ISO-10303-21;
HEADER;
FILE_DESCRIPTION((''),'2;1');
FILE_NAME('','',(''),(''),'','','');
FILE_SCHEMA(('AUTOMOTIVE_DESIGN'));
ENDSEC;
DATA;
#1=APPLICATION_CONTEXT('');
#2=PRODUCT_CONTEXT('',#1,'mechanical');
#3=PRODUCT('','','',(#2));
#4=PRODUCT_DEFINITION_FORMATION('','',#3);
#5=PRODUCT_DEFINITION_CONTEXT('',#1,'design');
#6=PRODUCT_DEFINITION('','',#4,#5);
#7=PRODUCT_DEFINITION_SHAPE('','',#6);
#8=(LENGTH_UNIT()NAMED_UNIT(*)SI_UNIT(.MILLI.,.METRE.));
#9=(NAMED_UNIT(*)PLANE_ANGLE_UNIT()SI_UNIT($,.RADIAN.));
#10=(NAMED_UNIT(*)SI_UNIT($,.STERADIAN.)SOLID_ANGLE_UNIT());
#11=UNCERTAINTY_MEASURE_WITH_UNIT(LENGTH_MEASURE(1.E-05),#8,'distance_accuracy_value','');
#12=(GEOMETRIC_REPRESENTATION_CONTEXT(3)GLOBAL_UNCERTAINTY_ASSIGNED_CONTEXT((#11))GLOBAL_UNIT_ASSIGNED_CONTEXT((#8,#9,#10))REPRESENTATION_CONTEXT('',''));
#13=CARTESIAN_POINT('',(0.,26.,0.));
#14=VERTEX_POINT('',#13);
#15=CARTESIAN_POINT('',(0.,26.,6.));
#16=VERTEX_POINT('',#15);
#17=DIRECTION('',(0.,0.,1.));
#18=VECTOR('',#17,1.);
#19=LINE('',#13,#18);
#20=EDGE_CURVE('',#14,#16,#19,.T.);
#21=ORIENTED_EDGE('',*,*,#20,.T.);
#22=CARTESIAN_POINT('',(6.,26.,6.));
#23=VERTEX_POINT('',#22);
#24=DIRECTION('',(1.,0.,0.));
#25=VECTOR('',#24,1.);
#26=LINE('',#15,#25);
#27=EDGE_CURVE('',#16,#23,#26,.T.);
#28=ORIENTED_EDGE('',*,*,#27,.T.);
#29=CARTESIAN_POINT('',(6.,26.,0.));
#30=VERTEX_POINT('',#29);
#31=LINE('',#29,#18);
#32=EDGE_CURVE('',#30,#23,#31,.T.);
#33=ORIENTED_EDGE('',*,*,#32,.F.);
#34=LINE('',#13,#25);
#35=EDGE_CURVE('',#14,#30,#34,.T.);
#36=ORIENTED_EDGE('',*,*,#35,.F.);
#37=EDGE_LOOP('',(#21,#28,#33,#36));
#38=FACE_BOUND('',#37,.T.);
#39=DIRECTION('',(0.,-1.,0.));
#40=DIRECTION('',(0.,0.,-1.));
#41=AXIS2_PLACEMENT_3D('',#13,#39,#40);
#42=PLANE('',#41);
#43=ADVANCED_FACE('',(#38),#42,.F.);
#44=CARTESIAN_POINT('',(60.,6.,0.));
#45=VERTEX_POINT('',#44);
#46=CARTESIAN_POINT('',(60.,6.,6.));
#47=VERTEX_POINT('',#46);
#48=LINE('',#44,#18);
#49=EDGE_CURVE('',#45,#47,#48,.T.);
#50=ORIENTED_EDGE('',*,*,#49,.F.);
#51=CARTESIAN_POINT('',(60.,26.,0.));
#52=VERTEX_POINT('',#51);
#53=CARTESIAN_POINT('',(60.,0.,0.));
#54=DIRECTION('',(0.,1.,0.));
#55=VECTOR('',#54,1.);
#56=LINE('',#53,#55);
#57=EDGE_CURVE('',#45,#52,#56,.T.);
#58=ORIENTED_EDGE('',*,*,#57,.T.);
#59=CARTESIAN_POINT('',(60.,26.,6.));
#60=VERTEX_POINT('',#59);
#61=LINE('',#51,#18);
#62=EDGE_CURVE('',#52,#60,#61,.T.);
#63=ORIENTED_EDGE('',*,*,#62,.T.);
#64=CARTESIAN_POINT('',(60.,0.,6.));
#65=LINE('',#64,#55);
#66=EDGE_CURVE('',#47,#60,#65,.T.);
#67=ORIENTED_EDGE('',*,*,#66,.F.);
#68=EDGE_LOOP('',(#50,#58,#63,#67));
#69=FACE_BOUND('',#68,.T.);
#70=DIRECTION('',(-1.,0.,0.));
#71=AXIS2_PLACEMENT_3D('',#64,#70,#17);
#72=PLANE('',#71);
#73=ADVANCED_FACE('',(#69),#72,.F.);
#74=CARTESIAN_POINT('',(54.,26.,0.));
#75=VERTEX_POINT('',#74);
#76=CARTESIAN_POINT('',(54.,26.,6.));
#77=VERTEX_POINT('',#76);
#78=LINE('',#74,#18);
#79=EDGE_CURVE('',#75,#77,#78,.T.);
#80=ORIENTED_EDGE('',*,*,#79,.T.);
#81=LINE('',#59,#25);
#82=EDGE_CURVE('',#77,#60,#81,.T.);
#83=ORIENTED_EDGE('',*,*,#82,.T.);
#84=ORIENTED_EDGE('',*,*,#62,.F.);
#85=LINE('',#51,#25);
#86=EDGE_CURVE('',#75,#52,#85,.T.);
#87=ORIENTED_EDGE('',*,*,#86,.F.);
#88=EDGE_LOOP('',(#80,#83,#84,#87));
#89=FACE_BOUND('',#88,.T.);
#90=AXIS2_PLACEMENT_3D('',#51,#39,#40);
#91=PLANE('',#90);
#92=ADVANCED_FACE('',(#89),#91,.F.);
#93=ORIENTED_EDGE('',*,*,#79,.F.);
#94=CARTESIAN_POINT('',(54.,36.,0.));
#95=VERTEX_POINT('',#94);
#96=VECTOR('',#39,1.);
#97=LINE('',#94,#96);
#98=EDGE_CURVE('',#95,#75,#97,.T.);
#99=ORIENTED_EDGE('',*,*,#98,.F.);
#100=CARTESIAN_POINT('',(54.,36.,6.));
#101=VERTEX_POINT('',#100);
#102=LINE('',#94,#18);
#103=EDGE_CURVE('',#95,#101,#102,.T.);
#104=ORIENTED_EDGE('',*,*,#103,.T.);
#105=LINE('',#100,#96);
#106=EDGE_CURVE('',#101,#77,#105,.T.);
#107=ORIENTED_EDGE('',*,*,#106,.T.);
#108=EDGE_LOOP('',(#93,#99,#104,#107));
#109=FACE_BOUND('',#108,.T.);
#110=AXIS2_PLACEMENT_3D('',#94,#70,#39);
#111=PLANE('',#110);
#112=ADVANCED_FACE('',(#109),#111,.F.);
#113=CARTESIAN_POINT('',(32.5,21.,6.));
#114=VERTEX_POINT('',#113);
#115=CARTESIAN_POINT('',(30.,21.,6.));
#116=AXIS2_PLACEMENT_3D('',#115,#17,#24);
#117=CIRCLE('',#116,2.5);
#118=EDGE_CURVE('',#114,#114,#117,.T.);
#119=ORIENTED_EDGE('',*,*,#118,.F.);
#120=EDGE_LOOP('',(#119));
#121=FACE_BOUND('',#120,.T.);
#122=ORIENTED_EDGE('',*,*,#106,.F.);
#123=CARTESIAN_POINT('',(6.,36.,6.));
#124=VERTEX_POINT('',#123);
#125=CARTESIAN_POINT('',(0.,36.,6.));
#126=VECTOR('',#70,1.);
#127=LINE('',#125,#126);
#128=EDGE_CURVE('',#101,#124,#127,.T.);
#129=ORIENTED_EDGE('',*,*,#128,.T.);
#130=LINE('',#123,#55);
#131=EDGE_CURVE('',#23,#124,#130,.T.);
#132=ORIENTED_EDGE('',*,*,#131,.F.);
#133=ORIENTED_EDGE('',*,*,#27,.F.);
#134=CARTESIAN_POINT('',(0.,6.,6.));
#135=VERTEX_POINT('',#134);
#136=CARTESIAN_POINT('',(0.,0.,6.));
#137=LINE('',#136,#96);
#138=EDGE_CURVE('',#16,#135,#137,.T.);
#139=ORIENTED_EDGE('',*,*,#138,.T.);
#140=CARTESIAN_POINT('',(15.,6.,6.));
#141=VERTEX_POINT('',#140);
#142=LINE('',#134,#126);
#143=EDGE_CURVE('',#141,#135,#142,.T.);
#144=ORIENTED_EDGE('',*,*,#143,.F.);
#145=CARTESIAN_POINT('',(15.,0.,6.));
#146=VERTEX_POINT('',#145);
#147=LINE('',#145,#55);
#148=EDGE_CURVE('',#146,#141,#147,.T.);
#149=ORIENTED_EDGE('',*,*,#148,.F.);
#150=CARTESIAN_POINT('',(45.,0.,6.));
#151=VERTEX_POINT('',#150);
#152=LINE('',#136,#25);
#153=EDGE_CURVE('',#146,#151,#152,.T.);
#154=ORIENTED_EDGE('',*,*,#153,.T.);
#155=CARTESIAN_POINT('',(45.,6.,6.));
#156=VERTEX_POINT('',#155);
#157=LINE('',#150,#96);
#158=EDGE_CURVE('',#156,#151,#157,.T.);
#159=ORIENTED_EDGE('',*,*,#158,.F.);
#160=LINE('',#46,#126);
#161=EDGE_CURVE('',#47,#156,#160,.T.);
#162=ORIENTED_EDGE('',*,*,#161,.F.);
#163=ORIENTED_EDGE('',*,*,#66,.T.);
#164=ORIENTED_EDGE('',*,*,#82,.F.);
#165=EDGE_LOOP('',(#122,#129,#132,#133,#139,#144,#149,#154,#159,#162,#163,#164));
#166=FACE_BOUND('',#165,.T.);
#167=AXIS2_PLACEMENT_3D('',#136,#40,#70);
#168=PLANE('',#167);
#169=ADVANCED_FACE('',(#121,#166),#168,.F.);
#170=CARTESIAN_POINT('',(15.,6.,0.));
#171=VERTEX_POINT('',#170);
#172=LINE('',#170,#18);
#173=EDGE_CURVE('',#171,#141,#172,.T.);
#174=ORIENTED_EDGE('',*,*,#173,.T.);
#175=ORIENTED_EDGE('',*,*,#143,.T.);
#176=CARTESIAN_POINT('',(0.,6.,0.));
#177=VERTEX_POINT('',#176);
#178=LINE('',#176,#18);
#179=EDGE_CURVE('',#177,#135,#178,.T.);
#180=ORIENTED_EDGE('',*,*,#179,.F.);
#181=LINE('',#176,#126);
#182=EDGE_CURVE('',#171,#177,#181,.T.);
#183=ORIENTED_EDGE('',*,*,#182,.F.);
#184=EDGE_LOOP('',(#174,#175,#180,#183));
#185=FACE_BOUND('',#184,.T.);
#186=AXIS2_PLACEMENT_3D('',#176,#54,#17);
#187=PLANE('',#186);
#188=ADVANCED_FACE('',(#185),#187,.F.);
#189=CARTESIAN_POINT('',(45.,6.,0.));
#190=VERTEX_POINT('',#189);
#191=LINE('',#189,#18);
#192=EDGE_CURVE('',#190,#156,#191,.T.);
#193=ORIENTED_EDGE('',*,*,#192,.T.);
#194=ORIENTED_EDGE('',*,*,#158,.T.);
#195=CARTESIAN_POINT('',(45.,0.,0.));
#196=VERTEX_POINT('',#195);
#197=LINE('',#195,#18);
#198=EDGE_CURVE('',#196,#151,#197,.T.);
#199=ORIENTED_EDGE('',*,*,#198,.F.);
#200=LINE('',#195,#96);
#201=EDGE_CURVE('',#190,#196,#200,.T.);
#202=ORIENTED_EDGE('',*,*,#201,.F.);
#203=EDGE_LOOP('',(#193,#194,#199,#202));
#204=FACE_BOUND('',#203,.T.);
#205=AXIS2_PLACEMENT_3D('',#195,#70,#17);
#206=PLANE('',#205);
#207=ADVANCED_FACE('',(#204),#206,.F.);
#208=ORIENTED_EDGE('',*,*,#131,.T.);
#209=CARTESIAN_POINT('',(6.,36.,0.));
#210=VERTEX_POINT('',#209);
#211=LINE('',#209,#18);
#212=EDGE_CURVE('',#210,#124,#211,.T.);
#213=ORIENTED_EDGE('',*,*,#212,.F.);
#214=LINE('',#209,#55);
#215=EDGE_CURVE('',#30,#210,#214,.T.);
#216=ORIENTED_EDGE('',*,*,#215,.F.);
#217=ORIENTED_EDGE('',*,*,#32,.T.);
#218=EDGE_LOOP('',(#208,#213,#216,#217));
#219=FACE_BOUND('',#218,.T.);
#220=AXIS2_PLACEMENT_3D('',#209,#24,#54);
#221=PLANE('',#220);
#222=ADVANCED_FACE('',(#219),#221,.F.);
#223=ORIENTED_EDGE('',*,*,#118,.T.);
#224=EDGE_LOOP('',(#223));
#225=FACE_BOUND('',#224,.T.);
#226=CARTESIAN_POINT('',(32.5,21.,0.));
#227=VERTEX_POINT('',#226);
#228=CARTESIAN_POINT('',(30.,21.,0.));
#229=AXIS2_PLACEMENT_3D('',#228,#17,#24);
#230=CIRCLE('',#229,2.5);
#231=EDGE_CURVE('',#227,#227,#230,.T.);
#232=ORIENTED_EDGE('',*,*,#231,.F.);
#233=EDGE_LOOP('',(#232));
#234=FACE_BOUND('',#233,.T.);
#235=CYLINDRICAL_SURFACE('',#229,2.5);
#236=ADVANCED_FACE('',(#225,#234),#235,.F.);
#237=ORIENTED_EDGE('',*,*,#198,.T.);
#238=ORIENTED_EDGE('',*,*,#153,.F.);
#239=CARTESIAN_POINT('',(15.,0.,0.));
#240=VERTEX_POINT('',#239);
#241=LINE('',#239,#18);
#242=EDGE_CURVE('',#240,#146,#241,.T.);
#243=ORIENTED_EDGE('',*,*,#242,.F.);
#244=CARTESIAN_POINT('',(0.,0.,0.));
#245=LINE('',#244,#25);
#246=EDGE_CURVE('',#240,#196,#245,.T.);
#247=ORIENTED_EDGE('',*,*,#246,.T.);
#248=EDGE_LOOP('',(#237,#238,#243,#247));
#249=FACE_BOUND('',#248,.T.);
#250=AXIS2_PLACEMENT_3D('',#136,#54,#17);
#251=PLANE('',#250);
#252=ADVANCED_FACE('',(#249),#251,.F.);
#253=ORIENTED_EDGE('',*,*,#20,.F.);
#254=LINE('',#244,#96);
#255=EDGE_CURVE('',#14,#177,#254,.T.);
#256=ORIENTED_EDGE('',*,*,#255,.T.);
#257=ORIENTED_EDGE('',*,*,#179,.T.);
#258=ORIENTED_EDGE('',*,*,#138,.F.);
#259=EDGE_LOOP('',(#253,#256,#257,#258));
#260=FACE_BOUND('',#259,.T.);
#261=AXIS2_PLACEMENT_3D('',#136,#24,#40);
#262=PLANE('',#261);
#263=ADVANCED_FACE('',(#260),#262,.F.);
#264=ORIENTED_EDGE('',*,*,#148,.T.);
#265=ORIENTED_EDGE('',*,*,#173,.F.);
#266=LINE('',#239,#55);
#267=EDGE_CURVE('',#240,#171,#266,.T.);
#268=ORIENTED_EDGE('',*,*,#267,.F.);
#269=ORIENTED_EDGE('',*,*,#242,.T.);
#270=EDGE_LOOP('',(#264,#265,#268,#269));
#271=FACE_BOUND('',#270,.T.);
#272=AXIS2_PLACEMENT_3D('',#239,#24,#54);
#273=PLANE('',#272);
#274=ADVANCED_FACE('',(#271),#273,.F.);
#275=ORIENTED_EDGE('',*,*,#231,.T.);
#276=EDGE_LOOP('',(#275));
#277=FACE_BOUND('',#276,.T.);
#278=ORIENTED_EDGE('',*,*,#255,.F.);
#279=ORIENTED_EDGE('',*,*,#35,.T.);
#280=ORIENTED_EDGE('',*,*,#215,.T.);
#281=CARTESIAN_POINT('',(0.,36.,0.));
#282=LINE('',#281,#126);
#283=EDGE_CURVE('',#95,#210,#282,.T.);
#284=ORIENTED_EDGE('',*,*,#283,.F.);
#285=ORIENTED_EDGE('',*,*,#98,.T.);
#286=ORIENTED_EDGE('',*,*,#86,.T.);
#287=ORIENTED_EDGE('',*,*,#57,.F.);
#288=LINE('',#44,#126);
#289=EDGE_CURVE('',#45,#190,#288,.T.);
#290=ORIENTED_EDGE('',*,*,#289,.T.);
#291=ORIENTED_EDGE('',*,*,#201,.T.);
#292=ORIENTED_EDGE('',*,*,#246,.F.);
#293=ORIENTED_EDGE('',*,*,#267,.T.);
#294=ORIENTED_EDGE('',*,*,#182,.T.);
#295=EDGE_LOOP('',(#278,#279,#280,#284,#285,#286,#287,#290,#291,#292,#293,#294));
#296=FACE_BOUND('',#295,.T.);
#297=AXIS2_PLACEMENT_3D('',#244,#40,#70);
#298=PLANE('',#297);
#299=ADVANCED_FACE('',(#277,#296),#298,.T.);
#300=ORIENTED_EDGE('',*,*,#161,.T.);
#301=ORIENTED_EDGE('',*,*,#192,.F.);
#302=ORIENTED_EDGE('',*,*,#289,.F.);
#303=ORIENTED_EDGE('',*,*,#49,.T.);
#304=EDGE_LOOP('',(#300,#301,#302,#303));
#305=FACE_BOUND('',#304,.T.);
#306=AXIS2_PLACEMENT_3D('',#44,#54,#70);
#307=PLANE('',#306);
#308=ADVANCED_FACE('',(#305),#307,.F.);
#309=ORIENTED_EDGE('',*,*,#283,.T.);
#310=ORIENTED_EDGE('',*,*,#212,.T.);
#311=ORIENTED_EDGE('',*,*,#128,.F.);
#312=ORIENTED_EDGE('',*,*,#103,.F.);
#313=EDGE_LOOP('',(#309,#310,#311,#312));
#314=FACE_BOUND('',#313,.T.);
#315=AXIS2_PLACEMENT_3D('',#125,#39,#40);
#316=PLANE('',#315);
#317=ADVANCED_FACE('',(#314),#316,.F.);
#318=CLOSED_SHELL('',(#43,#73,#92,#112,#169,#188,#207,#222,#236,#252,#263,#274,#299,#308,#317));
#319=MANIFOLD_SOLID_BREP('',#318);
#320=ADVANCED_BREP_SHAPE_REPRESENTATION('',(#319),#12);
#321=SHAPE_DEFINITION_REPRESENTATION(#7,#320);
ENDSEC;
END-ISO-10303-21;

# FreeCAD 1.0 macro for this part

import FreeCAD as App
import Part
import Sketcher
from FreeCAD import Vector
Q = App.Units.Quantity

doc = App.newDocument("Part")
params = doc.addObject("Spreadsheet::Sheet", "Params")
for row, (alias, value) in enumerate([
    ("sketch1_width", "60 mm"),
    ("sketch1_height", "36 mm"),
    ("pad1_length", "6 mm"),
    ("sketch2_width", "15 mm"),
    ("sketch2_height", "6 mm"),
    ("pocket1_length", "6 mm"),
    ("sketch3_width", "6 mm"),
    ("sketch3_height", "10 mm"),
    ("pocket2_length", "6 mm"),
    ("sketch4_diameter", "5 mm"),
    ("pocket3_length", "6 mm"),
], start=1):
    params.set(f"A{row}", alias)
    params.set(f"B{row}", "=" + value)
    params.setAlias(f"B{row}", alias)

body = doc.addObject("PartDesign::Body", "Body")

sketch1 = doc.addObject("Sketcher::SketchObject", "Sketch")
body.addObject(sketch1)
sketch1.AttachmentSupport = (doc.XY_Plane, [""])
sketch1.MapMode = "FlatFace"
sketch1.addGeometry(Part.LineSegment(Vector(0, 36, 0), Vector(0, 0, 0)), False)
sketch1.addGeometry(Part.LineSegment(Vector(0, 0, 0), Vector(60, 0, 0)), False)
sketch1.addGeometry(Part.LineSegment(Vector(60, 0, 0), Vector(60, 36, 0)), False)
sketch1.addGeometry(Part.LineSegment(Vector(60, 36, 0), Vector(0, 36, 0)), False)
sketch1.addConstraint(Sketcher.Constraint("Coincident", 0, 2, 1, 1))
sketch1.addConstraint(Sketcher.Constraint("Coincident", 1, 2, 2, 1))
sketch1.addConstraint(Sketcher.Constraint("Coincident", 2, 2, 3, 1))
sketch1.addConstraint(Sketcher.Constraint("Coincident", 3, 2, 0, 1))
sketch1.addConstraint(Sketcher.Constraint("Vertical", 0))
sketch1.addConstraint(Sketcher.Constraint("Horizontal", 1))
sketch1.addConstraint(Sketcher.Constraint("Vertical", 2))
sketch1.addConstraint(Sketcher.Constraint("Horizontal", 3))
sketch1.addConstraint(Sketcher.Constraint("Coincident", 0, 2, -1, 1))
sketch1.addConstraint(Sketcher.Constraint("DistanceX", 1, 1, 1, 2, Q("60 mm")))
sketch1.addConstraint(Sketcher.Constraint("DistanceY", 0, 2, 0, 1, Q("36 mm")))
sketch1.setExpression("Constraints[9]", "Params.sketch1_width")
sketch1.setExpression("Constraints[10]", "Params.sketch1_height")
pad1 = doc.addObject("PartDesign::Pad", "Pad")
body.addObject(pad1)
pad1.Profile = sketch1
pad1.setExpression("Length", "Params.pad1_length")

sketch2 = doc.addObject("Sketcher::SketchObject", "Sketch001")
body.addObject(sketch2)
sketch2.AttachmentSupport = (doc.XY_Plane, [""])
sketch2.MapMode = "FlatFace"
sketch2.AttachmentOffset = App.Placement(Vector(0, 0, 6), App.Rotation())
sketch2.addGeometry(Part.LineSegment(Vector(0, 6, 0), Vector(0, 0, 0)), False)
sketch2.addGeometry(Part.LineSegment(Vector(0, 0, 0), Vector(15, 0, 0)), False)
sketch2.addGeometry(Part.LineSegment(Vector(15, 0, 0), Vector(15, 6, 0)), False)
sketch2.addGeometry(Part.LineSegment(Vector(15, 6, 0), Vector(0, 6, 0)), False)
sketch2.addGeometry(Part.LineSegment(Vector(45, 6, 0), Vector(45, 0, 0)), False)
sketch2.addGeometry(Part.LineSegment(Vector(45, 0, 0), Vector(60, 0, 0)), False)
sketch2.addGeometry(Part.LineSegment(Vector(60, 0, 0), Vector(60, 6, 0)), False)
sketch2.addGeometry(Part.LineSegment(Vector(60, 6, 0), Vector(45, 6, 0)), False)
sketch2.addConstraint(Sketcher.Constraint("Coincident", 0, 2, 1, 1))
sketch2.addConstraint(Sketcher.Constraint("Coincident", 1, 2, 2, 1))
sketch2.addConstraint(Sketcher.Constraint("Coincident", 2, 2, 3, 1))
sketch2.addConstraint(Sketcher.Constraint("Coincident", 3, 2, 0, 1))
sketch2.addConstraint(Sketcher.Constraint("Coincident", 4, 2, 5, 1))
sketch2.addConstraint(Sketcher.Constraint("Coincident", 5, 2, 6, 1))
sketch2.addConstraint(Sketcher.Constraint("Coincident", 6, 2, 7, 1))
sketch2.addConstraint(Sketcher.Constraint("Coincident", 7, 2, 4, 1))
sketch2.addConstraint(Sketcher.Constraint("Vertical", 0))
sketch2.addConstraint(Sketcher.Constraint("Horizontal", 1))
sketch2.addConstraint(Sketcher.Constraint("Vertical", 2))
sketch2.addConstraint(Sketcher.Constraint("Horizontal", 3))
sketch2.addConstraint(Sketcher.Constraint("Vertical", 4))
sketch2.addConstraint(Sketcher.Constraint("Horizontal", 5))
sketch2.addConstraint(Sketcher.Constraint("Vertical", 6))
sketch2.addConstraint(Sketcher.Constraint("Horizontal", 7))
sketch2.addConstraint(Sketcher.Constraint("Coincident", 0, 2, -1, 1))
sketch2.addConstraint(Sketcher.Constraint("PointOnObject", 4, 2, -1))
sketch2.addConstraint(Sketcher.Constraint("Horizontal", 3, 2, 6, 2))
sketch2.addConstraint(Sketcher.Constraint("Equal", 3, 5))
sketch2.addConstraint(Sketcher.Constraint("DistanceX", 1, 1, 1, 2, Q("15 mm")))
sketch2.addConstraint(Sketcher.Constraint("DistanceY", 0, 2, 0, 1, Q("6 mm")))
sketch2.addConstraint(Sketcher.Constraint("DistanceX", -1, 1, 4, 2, Q("45 mm")))
sketch2.setExpression("Constraints[20]", "Params.sketch2_width")
sketch2.setExpression("Constraints[21]", "Params.sketch2_height")
pocket1 = doc.addObject("PartDesign::Pocket", "Pocket")
body.addObject(pocket1)
pocket1.Profile = sketch2
pocket1.setExpression("Length", "Params.pocket1_length")

sketch3 = doc.addObject("Sketcher::SketchObject", "Sketch002")
body.addObject(sketch3)
sketch3.AttachmentSupport = (doc.XY_Plane, [""])
sketch3.MapMode = "FlatFace"
sketch3.AttachmentOffset = App.Placement(Vector(0, 0, 6), App.Rotation())
sketch3.addGeometry(Part.LineSegment(Vector(0, 36, 0), Vector(0, 26, 0)), False)
sketch3.addGeometry(Part.LineSegment(Vector(0, 26, 0), Vector(6, 26, 0)), False)
sketch3.addGeometry(Part.LineSegment(Vector(6, 26, 0), Vector(6, 36, 0)), False)
sketch3.addGeometry(Part.LineSegment(Vector(6, 36, 0), Vector(0, 36, 0)), False)
sketch3.addGeometry(Part.LineSegment(Vector(54, 36, 0), Vector(54, 26, 0)), False)
sketch3.addGeometry(Part.LineSegment(Vector(54, 26, 0), Vector(60, 26, 0)), False)
sketch3.addGeometry(Part.LineSegment(Vector(60, 26, 0), Vector(60, 36, 0)), False)
sketch3.addGeometry(Part.LineSegment(Vector(60, 36, 0), Vector(54, 36, 0)), False)
sketch3.addConstraint(Sketcher.Constraint("Coincident", 0, 2, 1, 1))
sketch3.addConstraint(Sketcher.Constraint("Coincident", 1, 2, 2, 1))
sketch3.addConstraint(Sketcher.Constraint("Coincident", 2, 2, 3, 1))
sketch3.addConstraint(Sketcher.Constraint("Coincident", 3, 2, 0, 1))
sketch3.addConstraint(Sketcher.Constraint("Coincident", 4, 2, 5, 1))
sketch3.addConstraint(Sketcher.Constraint("Coincident", 5, 2, 6, 1))
sketch3.addConstraint(Sketcher.Constraint("Coincident", 6, 2, 7, 1))
sketch3.addConstraint(Sketcher.Constraint("Coincident", 7, 2, 4, 1))
sketch3.addConstraint(Sketcher.Constraint("Vertical", 0))
sketch3.addConstraint(Sketcher.Constraint("Horizontal", 1))
sketch3.addConstraint(Sketcher.Constraint("Vertical", 2))
sketch3.addConstraint(Sketcher.Constraint("Horizontal", 3))
sketch3.addConstraint(Sketcher.Constraint("Vertical", 4))
sketch3.addConstraint(Sketcher.Constraint("Horizontal", 5))
sketch3.addConstraint(Sketcher.Constraint("Vertical", 6))
sketch3.addConstraint(Sketcher.Constraint("Horizontal", 7))
sketch3.addConstraint(Sketcher.Constraint("PointOnObject", 0, 2, -2))
sketch3.addConstraint(Sketcher.Constraint("Horizontal", 1, 2, 4, 2))
sketch3.addConstraint(Sketcher.Constraint("Horizontal", 3, 2, 6, 2))
sketch3.addConstraint(Sketcher.Constraint("Equal", 3, 5))
sketch3.addConstraint(Sketcher.Constraint("DistanceX", 1, 1, 1, 2, Q("6 mm")))
sketch3.addConstraint(Sketcher.Constraint("DistanceY", 0, 2, 0, 1, Q("10 mm")))
sketch3.addConstraint(Sketcher.Constraint("DistanceY", -1, 1, 0, 2, Q("26 mm")))
sketch3.addConstraint(Sketcher.Constraint("DistanceX", -1, 1, 4, 2, Q("54 mm")))
sketch3.setExpression("Constraints[20]", "Params.sketch3_width")
sketch3.setExpression("Constraints[21]", "Params.sketch3_height")
pocket2 = doc.addObject("PartDesign::Pocket", "Pocket001")
body.addObject(pocket2)
pocket2.Profile = sketch3
pocket2.setExpression("Length", "Params.pocket2_length")

sketch4 = doc.addObject("Sketcher::SketchObject", "Sketch003")
body.addObject(sketch4)
sketch4.AttachmentSupport = (doc.XY_Plane, [""])
sketch4.MapMode = "FlatFace"
sketch4.AttachmentOffset = App.Placement(Vector(0, 0, 6), App.Rotation())
sketch4.addGeometry(Part.Circle(Vector(30, 21, 0), Vector(0, 0, 1), 2.5), False)
sketch4.addConstraint(Sketcher.Constraint("Diameter", 0, Q("5 mm")))
sketch4.addConstraint(Sketcher.Constraint("DistanceX", -1, 1, 0, 3, Q("30 mm")))
sketch4.addConstraint(Sketcher.Constraint("DistanceY", -1, 1, 0, 3, Q("21 mm")))
sketch4.setExpression("Constraints[0]", "Params.sketch4_diameter")
pocket3 = doc.addObject("PartDesign::Pocket", "Pocket002")
body.addObject(pocket3)
pocket3.Profile = sketch4
pocket3.setExpression("Length", "Params.pocket3_length")

doc.recompute()
